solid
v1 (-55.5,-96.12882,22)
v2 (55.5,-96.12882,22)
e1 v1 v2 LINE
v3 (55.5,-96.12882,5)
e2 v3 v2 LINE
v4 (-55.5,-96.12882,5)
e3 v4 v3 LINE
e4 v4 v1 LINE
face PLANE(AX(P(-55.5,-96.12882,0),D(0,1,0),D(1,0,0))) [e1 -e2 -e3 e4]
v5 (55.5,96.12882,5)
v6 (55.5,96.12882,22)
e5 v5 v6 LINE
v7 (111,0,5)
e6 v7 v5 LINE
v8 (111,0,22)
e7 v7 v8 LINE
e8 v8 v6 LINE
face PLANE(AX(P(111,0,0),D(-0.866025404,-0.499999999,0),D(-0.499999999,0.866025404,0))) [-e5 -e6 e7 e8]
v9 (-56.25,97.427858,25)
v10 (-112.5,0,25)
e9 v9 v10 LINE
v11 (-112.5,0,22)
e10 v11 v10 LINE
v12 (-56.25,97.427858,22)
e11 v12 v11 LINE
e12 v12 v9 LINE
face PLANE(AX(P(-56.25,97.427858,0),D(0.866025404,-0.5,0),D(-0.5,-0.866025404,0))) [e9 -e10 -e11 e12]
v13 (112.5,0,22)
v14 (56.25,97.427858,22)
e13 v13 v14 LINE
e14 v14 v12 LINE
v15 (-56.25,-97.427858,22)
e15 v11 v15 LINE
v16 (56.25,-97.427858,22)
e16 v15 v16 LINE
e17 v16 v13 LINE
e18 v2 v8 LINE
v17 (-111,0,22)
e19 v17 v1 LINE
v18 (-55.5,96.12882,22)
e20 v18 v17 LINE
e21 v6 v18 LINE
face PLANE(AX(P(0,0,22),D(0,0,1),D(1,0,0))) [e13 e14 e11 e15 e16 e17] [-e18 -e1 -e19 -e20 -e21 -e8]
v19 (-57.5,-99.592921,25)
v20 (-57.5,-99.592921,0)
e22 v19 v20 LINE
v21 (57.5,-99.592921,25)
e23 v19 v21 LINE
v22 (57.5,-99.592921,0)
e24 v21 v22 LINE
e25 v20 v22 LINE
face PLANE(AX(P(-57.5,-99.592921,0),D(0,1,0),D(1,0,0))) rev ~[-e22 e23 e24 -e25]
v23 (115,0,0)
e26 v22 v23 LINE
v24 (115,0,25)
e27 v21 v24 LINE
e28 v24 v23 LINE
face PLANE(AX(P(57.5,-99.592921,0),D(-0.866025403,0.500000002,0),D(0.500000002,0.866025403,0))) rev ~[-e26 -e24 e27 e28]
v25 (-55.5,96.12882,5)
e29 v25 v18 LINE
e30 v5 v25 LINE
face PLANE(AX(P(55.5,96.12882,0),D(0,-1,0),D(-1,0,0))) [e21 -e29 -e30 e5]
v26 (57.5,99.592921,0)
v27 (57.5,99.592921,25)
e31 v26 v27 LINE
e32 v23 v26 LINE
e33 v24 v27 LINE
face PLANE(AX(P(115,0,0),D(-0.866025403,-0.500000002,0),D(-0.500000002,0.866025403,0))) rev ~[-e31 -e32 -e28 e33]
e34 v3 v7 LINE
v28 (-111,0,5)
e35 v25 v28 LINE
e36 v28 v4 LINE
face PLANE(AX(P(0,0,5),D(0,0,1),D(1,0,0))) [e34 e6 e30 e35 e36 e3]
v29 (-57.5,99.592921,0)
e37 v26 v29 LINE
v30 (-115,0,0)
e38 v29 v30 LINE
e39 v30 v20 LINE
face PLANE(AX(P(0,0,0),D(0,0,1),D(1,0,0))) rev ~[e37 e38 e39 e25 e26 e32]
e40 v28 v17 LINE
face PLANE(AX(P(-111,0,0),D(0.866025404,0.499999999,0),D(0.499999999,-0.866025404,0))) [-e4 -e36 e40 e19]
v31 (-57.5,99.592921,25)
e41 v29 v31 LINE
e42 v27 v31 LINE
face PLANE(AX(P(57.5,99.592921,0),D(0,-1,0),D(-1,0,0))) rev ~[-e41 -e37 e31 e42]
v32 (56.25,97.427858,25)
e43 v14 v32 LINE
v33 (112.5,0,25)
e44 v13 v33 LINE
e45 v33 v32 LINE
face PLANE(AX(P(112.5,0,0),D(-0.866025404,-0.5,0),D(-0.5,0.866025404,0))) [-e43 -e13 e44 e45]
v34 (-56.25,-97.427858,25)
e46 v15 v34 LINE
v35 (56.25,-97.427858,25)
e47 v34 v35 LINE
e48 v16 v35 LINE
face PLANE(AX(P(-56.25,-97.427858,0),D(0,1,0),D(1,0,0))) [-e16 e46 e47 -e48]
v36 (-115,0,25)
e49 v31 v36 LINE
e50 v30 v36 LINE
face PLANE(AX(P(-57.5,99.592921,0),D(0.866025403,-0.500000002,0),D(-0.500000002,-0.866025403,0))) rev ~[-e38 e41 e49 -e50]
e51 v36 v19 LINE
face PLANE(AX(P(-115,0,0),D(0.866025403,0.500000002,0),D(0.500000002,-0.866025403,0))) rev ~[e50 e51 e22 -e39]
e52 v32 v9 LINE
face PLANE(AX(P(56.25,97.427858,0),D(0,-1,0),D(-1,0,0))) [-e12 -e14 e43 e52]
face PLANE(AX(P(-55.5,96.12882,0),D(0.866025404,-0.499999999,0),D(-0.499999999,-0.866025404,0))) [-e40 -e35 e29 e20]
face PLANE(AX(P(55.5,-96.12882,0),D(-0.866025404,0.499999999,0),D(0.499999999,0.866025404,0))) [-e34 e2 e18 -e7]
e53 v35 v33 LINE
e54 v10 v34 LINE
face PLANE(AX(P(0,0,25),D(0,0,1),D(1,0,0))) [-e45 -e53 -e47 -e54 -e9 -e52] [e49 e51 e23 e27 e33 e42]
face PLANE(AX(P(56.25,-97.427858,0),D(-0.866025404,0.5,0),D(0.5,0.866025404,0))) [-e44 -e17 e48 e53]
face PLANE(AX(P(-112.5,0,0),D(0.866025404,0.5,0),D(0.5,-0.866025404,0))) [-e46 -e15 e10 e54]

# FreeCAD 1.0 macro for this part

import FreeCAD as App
import Part
import Sketcher
from FreeCAD import Vector
Q = App.Units.Quantity


def add_polygon(sketch, points):
    """Adds a closed chain of lines whose ends are joined by coincident constraints."""
    first, n = sketch.GeometryCount, len(points)
    for a, b in zip(points, points[1:] + points[:1]):
        sketch.addGeometry(Part.LineSegment(App.Vector(*a, 0), App.Vector(*b, 0)), False)
    for i in range(n):
        sketch.addConstraint(Sketcher.Constraint("Coincident", first + i, 2, first + (i + 1) % n, 1))

doc = App.newDocument("Part")
body = doc.addObject("PartDesign::Body", "Body")

sketch1 = body.newObject("Sketcher::SketchObject", "Sketch")
sketch1.AttachmentSupport = (doc.getObject("XY_Plane"), [""])
sketch1.MapMode = "FlatFace"
add_polygon(sketch1, [(115, 0), (57.5, 99.592921), (-57.5, 99.592921), (-115, 0), (-57.5, -99.592921), (57.5, -99.592921)])
sketch1.addConstraint(Sketcher.Constraint("Horizontal", 1))
sketch1.addConstraint(Sketcher.Constraint("Horizontal", 4))
sketch1.addConstraint(Sketcher.Constraint("Symmetric", 0, 2, 3, 2, -1, 1))
sketch1.addConstraint(Sketcher.Constraint("Symmetric", 2, 2, 5, 2, -1, 1))
sketch1.addConstraint(Sketcher.Constraint("PointOnObject", 2, 2, -1))
sketch1.addConstraint(Sketcher.Constraint("Parallel", 2, 5))
sketch1.addConstraint(Sketcher.Constraint("Vertical", 1, 2, 3, 2))
sketch1.addConstraint(Sketcher.Constraint("DistanceX", 1, 2, 1, 1, 115.0))
sketch1.addConstraint(Sketcher.Constraint("Angle", 0, Q("120 deg")))
sketch1.addConstraint(Sketcher.Constraint("Distance", 0, 115.0))
pad1 = body.newObject("PartDesign::Pad", "Pad")
pad1.Profile = sketch1
pad1.Length = 5
body2 = doc.addObject("PartDesign::Body", "Body001")

sketch2 = body2.newObject("Sketcher::SketchObject", "Sketch001")
sketch2.AttachmentSupport = (doc.getObject("XY_Plane001"), [""])
sketch2.MapMode = "FlatFace"
add_polygon(sketch2, [(115, 0), (57.5, 99.592921), (-57.5, 99.592921), (-115, 0), (-57.5, -99.592921), (57.5, -99.592921)])
add_polygon(sketch2, [(56.25, 97.427858), (112.5, 0), (56.25, -97.427858), (-56.25, -97.427858), (-112.5, 0), (-56.25, 97.427858)])
sketch2.addConstraint(Sketcher.Constraint("Horizontal", 1))
sketch2.addConstraint(Sketcher.Constraint("Horizontal", 4))
sketch2.addConstraint(Sketcher.Constraint("Horizontal", 8))
sketch2.addConstraint(Sketcher.Constraint("Horizontal", 11))
sketch2.addConstraint(Sketcher.Constraint("Symmetric", 0, 2, 3, 2, -1, 1))
sketch2.addConstraint(Sketcher.Constraint("Symmetric", 2, 2, 5, 2, -1, 1))
sketch2.addConstraint(Sketcher.Constraint("Symmetric", 6, 2, 9, 2, -1, 1))
sketch2.addConstraint(Sketcher.Constraint("Symmetric", 7, 2, 10, 2, -1, 1))
sketch2.addConstraint(Sketcher.Constraint("PointOnObject", 2, 2, -1))
sketch2.addConstraint(Sketcher.Constraint("PointOnObject", 6, 2, -1))
sketch2.addConstraint(Sketcher.Constraint("Parallel", 2, 5))
sketch2.addConstraint(Sketcher.Constraint("Parallel", 3, 6))
sketch2.addConstraint(Sketcher.Constraint("Parallel", 5, 7))
sketch2.addConstraint(Sketcher.Constraint("Parallel", 6, 9))
sketch2.addConstraint(Sketcher.Constraint("Vertical", 1, 2, 3, 2))
sketch2.addConstraint(Sketcher.Constraint("DistanceX", 1, 2, 1, 1, 115.0))
sketch2.addConstraint(Sketcher.Constraint("Angle", 0, Q("120 deg")))
sketch2.addConstraint(Sketcher.Constraint("Distance", 0, 115.0))
sketch2.addConstraint(Sketcher.Constraint("DistanceX", 8, 2, 8, 1, 112.5))
sketch2.addConstraint(Sketcher.Constraint("DistanceX", 0, 2, 6, 2, 55.0))
pad2 = body2.newObject("PartDesign::Pad", "Pad001")
pad2.Profile = sketch2
pad2.Length = 25
body3 = doc.addObject("PartDesign::Body", "Body002")

sketch3 = body3.newObject("Sketcher::SketchObject", "Sketch002")
sketch3.AttachmentSupport = (doc.getObject("XY_Plane002"), [""])
sketch3.MapMode = "FlatFace"
add_polygon(sketch3, [(112.5, 0), (56.25, 97.427858), (-56.25, 97.427858), (-112.5, 0), (-56.25, -97.427858), (56.25, -97.427858)])
add_polygon(sketch3, [(55.5, 96.12882), (111, 0), (55.5, -96.12882), (-55.5, -96.12882), (-111, 0), (-55.5, 96.12882)])
sketch3.addConstraint(Sketcher.Constraint("Horizontal", 1))
sketch3.addConstraint(Sketcher.Constraint("Horizontal", 4))
sketch3.addConstraint(Sketcher.Constraint("Horizontal", 8))
sketch3.addConstraint(Sketcher.Constraint("Horizontal", 11))
sketch3.addConstraint(Sketcher.Constraint("Symmetric", 0, 2, 3, 2, -1, 1))
sketch3.addConstraint(Sketcher.Constraint("Symmetric", 2, 2, 5, 2, -1, 1))
sketch3.addConstraint(Sketcher.Constraint("Symmetric", 6, 2, 9, 2, -1, 1))
sketch3.addConstraint(Sketcher.Constraint("Symmetric", 7, 2, 10, 2, -1, 1))
sketch3.addConstraint(Sketcher.Constraint("PointOnObject", 2, 2, -1))
sketch3.addConstraint(Sketcher.Constraint("PointOnObject", 6, 2, -1))
sketch3.addConstraint(Sketcher.Constraint("Parallel", 2, 5))
sketch3.addConstraint(Sketcher.Constraint("Parallel", 3, 6))
sketch3.addConstraint(Sketcher.Constraint("Parallel", 5, 7))
sketch3.addConstraint(Sketcher.Constraint("Parallel", 6, 9))
sketch3.addConstraint(Sketcher.Constraint("Vertical", 1, 2, 3, 2))
sketch3.addConstraint(Sketcher.Constraint("DistanceX", 8, 2, 8, 1, 111.0))
sketch3.addConstraint(Sketcher.Constraint("Angle", 0, Q("120 deg")))
sketch3.addConstraint(Sketcher.Constraint("Distance", 6, 111.0))
sketch3.addConstraint(Sketcher.Constraint("DistanceX", 1, 2, 1, 1, 112.5))
sketch3.addConstraint(Sketcher.Constraint("DistanceX", 2, 2, 5, 2, 225.0))
pad3 = body3.newObject("PartDesign::Pad", "Pad002")
pad3.Profile = sketch3
pad3.Length = 22
doc.recompute()

boolean = body3.newObject("PartDesign::Boolean", "Boolean")
boolean.Type = "Fuse"
boolean.addObjects([body])
doc.recompute()

boolean2 = body3.newObject("PartDesign::Boolean", "Boolean001")
boolean2.Type = "Fuse"
boolean2.addObjects([body2])

doc.recompute()
